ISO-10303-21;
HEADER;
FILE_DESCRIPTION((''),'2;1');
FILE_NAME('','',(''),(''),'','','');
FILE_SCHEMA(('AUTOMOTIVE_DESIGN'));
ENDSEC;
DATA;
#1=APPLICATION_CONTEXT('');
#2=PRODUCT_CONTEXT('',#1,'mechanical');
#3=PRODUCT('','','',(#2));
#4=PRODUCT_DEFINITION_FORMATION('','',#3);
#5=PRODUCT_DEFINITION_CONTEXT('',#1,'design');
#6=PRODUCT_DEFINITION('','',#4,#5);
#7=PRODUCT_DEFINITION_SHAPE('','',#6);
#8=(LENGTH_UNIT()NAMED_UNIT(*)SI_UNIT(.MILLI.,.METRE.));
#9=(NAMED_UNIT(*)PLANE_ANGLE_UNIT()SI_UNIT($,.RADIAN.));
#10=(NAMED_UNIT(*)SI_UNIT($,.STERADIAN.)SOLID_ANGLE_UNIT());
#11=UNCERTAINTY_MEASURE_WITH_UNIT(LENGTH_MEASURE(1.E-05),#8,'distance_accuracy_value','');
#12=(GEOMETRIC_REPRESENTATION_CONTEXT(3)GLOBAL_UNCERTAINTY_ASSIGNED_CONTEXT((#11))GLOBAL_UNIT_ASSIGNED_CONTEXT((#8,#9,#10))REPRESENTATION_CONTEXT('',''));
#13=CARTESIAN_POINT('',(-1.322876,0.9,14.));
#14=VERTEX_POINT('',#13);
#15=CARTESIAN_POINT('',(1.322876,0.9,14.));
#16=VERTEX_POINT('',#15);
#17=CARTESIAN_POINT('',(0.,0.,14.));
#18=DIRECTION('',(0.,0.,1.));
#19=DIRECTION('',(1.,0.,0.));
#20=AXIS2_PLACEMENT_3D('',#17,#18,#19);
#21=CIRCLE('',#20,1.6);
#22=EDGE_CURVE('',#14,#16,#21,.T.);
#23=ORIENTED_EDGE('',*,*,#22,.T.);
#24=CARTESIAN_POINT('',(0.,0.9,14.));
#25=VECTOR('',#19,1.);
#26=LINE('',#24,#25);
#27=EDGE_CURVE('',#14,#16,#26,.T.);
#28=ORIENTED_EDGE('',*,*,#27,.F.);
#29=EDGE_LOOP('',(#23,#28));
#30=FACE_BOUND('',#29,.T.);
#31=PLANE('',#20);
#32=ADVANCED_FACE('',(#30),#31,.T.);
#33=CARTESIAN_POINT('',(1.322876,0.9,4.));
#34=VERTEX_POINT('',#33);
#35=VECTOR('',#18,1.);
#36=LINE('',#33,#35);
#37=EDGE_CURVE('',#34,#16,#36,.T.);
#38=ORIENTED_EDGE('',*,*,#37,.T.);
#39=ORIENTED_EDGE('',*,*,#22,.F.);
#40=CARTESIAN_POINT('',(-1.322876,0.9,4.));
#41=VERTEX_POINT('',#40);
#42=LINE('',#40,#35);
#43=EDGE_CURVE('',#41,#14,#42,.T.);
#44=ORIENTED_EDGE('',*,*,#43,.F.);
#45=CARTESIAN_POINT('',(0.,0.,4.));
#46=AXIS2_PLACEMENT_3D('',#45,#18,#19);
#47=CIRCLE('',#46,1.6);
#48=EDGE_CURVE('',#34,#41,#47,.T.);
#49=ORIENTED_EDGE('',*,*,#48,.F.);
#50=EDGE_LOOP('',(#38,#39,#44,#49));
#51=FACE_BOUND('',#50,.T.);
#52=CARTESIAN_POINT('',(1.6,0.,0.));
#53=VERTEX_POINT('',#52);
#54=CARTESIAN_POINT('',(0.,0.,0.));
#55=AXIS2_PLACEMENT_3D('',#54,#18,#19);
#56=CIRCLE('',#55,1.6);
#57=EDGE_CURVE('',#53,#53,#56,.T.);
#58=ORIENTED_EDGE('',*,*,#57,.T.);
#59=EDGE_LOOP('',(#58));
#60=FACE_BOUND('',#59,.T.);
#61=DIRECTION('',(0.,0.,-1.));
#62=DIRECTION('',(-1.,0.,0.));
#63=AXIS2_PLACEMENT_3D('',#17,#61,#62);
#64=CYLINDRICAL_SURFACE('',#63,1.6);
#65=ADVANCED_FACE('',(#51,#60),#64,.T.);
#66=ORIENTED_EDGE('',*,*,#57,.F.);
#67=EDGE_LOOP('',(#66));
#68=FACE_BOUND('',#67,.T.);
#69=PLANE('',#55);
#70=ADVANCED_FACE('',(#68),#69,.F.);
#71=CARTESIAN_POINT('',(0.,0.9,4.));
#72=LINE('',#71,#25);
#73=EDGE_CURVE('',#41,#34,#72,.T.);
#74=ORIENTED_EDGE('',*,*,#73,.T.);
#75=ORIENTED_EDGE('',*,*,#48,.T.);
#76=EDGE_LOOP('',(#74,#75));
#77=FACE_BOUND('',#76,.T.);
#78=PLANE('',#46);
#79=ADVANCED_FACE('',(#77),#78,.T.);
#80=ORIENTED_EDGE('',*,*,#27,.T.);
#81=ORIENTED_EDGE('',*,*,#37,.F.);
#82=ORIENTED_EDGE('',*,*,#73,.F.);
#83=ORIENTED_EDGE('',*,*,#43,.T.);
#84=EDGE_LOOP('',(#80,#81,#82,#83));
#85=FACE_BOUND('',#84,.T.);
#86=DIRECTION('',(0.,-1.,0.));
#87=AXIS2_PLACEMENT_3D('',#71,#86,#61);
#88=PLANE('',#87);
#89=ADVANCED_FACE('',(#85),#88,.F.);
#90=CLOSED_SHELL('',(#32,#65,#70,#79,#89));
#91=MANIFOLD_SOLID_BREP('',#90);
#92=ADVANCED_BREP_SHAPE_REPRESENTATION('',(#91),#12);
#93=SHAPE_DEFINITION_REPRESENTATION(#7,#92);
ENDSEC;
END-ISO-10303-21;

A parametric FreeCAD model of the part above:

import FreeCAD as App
import Part
import Sketcher

V = App.Vector
Q = App.Units.Quantity


def add_polygon(sketch, points):
    """Adds a closed chain of lines whose ends are joined by coincident constraints."""
    first, n = sketch.GeometryCount, len(points)
    for a, b in zip(points, points[1:] + points[:1]):
        sketch.addGeometry(Part.LineSegment(App.Vector(*a, 0), App.Vector(*b, 0)), False)
    for i in range(n):
        sketch.addConstraint(Sketcher.Constraint("Coincident", first + i, 2, first + (i + 1) % n, 1))

doc = App.newDocument("Part")
body = doc.addObject("PartDesign::Body", "Body")

# Sketch on XY plane
sketch1 = doc.addObject("Sketcher::SketchObject", "Sketch")
body.addObject(sketch1)
sketch1.AttachmentSupport = (doc.XY_Plane, [""])
sketch1.MapMode = "FlatFace"
sketch1.addGeometry(Part.Circle(V(0, 0, 0), V(0, 0, 1), 1.6), False)
sketch1.addConstraint([
    Sketcher.Constraint("Coincident", 0, 3, -1, 1),
    Sketcher.Constraint("Diameter", 0, Q("3.2 mm")),
])
pad1 = doc.addObject("PartDesign::Pad", "Pad")
body.addObject(pad1)
pad1.Profile = sketch1
pad1.Length = 14

# Sketch on XY plane
sketch2 = doc.addObject("Sketcher::SketchObject", "Sketch001")
body.addObject(sketch2)
sketch2.AttachmentSupport = (doc.XY_Plane, [""])
sketch2.MapMode = "FlatFace"
sketch2.AttachmentOffset = App.Placement(V(0, 0, 14), App.Rotation())
add_polygon(sketch2, [(-19, 1), (19, 1), (19, 36), (-19, 36)])  # lines 0-3
sketch2.addConstraint([
    Sketcher.Constraint("Horizontal", 0),
    Sketcher.Constraint("Vertical", 1),
    Sketcher.Constraint("Horizontal", 2),
    Sketcher.Constraint("Vertical", 3),
    Sketcher.Constraint("DistanceY", -1, 1, 0, 2, Q("0.9 mm")),
    Sketcher.Constraint("DistanceX", 0, 1, 0, 2, Q("38.030524 mm")),
    Sketcher.Constraint("DistanceY", 1, 1, 1, 2, Q("35.384773 mm")),
    Sketcher.Constraint("DistanceX", -1, 1, 0, 2, Q("19.015262 mm")),
])
pocket1 = doc.addObject("PartDesign::Pocket", "Pocket")
body.addObject(pocket1)
pocket1.Profile = sketch2
pocket1.Length = 10

doc.recompute()
